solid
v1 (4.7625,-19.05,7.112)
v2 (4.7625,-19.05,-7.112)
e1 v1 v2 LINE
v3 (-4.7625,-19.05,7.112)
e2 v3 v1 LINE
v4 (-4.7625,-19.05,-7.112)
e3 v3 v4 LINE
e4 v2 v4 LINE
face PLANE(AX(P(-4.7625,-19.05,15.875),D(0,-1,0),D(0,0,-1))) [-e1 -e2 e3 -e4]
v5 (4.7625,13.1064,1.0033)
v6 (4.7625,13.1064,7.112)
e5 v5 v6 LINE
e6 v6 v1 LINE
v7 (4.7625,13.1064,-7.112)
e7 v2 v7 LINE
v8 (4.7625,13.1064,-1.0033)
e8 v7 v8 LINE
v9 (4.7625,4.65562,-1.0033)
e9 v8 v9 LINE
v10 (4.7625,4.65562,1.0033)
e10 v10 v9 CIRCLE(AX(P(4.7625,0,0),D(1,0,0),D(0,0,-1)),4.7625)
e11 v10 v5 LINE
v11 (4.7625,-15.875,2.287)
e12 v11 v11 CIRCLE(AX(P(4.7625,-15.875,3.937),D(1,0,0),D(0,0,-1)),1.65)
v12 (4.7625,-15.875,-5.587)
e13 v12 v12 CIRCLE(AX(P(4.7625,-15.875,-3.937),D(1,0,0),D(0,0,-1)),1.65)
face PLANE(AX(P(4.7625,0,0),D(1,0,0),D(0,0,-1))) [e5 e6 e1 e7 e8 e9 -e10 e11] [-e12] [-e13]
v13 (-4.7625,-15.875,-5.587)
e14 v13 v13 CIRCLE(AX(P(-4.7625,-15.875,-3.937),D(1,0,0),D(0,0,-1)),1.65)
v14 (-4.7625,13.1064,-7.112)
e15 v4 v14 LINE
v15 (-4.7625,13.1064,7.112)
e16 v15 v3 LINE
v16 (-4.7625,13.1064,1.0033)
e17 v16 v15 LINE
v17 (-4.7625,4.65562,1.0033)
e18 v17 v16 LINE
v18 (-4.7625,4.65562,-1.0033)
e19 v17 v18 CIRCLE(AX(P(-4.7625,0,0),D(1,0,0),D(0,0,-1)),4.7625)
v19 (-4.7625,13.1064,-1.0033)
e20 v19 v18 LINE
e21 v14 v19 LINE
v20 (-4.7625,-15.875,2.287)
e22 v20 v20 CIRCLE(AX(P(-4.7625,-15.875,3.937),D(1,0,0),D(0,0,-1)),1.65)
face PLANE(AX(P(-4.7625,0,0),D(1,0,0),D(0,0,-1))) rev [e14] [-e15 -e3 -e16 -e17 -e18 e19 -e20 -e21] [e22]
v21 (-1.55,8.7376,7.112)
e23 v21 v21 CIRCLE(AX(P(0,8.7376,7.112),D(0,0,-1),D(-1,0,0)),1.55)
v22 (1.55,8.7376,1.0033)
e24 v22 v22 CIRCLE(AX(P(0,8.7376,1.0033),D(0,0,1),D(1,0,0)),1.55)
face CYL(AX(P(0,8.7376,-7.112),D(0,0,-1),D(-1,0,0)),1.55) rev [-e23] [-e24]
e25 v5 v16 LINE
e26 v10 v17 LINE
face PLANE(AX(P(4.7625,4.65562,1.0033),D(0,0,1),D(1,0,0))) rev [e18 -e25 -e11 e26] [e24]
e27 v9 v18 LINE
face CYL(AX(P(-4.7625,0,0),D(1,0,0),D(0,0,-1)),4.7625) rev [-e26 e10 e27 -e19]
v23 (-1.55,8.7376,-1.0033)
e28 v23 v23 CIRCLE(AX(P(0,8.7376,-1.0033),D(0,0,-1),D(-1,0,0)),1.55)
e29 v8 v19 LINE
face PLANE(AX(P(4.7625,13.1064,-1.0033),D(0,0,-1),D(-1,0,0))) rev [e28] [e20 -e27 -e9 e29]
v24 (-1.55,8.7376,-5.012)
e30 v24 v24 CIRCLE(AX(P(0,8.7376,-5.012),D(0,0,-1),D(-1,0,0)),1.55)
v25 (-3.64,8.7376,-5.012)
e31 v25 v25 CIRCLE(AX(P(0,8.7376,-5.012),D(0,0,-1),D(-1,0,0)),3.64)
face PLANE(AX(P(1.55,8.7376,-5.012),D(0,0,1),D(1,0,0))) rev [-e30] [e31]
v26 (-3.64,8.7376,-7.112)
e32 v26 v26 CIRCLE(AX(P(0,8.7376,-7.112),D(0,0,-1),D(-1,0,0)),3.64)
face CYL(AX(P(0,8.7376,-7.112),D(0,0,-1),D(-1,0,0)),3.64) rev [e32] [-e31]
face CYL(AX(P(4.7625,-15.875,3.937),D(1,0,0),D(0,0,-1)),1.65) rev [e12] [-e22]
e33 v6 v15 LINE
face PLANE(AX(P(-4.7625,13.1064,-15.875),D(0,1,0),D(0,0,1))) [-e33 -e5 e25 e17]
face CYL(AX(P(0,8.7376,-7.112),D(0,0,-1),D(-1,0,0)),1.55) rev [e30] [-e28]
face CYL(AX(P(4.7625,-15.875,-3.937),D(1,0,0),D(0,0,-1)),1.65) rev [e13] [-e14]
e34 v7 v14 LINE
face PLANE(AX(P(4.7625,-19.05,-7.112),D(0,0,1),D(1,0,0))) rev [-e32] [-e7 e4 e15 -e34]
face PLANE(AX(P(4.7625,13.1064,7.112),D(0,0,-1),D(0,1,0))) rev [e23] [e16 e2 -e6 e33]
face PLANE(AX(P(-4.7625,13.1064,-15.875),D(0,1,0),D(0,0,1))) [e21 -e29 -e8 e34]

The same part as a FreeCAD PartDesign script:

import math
import FreeCAD as App
import Part
import Sketcher
Q = App.Units.Quantity

doc = App.newDocument("Part")
body = doc.addObject("PartDesign::Body", "Body")

# Sketch on YZ plane
sketch1 = doc.addObject("Sketcher::SketchObject", "Sketch")
body.addObject(sketch1)
sketch1.AttachmentSupport = (doc.YZ_Plane, [""])
sketch1.MapMode = "FlatFace"
sketch1.AttachmentOffset = App.Placement(App.Vector(0, 0, 0.1875 * 25.4), App.Rotation())
sketch1.addGeometry(Part.LineSegment(App.Vector(13, 16, 0), App.Vector(-19, 16, 0)), False)
sketch1.addGeometry(Part.LineSegment(App.Vector(-19, 16, 0), App.Vector(-19, -16, 0)), False)
sketch1.addGeometry(Part.LineSegment(App.Vector(-19, -16, 0), App.Vector(13, -16, 0)), False)
sketch1.addGeometry(Part.LineSegment(App.Vector(13, -16, 0), App.Vector(13, 16, 0)), False)
sketch1.addConstraint(Sketcher.Constraint("Coincident", 0, 2, 1, 1))
sketch1.addConstraint(Sketcher.Constraint("Coincident", 1, 2, 2, 1))
sketch1.addConstraint(Sketcher.Constraint("Coincident", 2, 2, 3, 1))
sketch1.addConstraint(Sketcher.Constraint("Coincident", 3, 2, 0, 1))
sketch1.addConstraint(Sketcher.Constraint("Horizontal", 0))
sketch1.addConstraint(Sketcher.Constraint("Vertical", 1))
sketch1.addConstraint(Sketcher.Constraint("Horizontal", 2))
sketch1.addConstraint(Sketcher.Constraint("Vertical", 3))
sketch1.addConstraint(Sketcher.Constraint("DistanceY", 1, 2, 1, 1, Q("1.25 in")))
sketch1.addConstraint(Sketcher.Constraint("DistanceX", 0, 2, 0, 1, Q("1.266 in")))
sketch1.addConstraint(Sketcher.Constraint("DistanceX", 0, 2, -1, 1, Q("0.75 in")))
sketch1.addConstraint(Sketcher.Constraint("DistanceY", -1, 1, 0, 2, Q("0.625 in")))
pad1 = doc.addObject("PartDesign::Pad", "Pad")
body.addObject(pad1)
pad1.Profile = sketch1
pad1.Length = Q("0.375 in")
pad1.Reversed = True

# Sketch on YZ plane
sketch2 = doc.addObject("Sketcher::SketchObject", "Sketch001")
body.addObject(sketch2)
sketch2.AttachmentSupport = (doc.YZ_Plane, [""])
sketch2.MapMode = "FlatFace"
sketch2.AttachmentOffset = App.Placement(App.Vector(0, 0, -0.1875 * 25.4), App.Rotation())
sketch2.addGeometry(Part.LineSegment(App.Vector(13, -16, 0), App.Vector(-19, -16, 0)), False)
sketch2.addGeometry(Part.LineSegment(App.Vector(-19, -16, 0), App.Vector(-19, -7, 0)), False)
sketch2.addGeometry(Part.LineSegment(App.Vector(-19, -7, 0), App.Vector(13, -7, 0)), False)
sketch2.addGeometry(Part.LineSegment(App.Vector(13, -7, 0), App.Vector(13, -16, 0)), False)
sketch2.addConstraint(Sketcher.Constraint("Coincident", 0, 2, 1, 1))
sketch2.addConstraint(Sketcher.Constraint("Coincident", 1, 2, 2, 1))
sketch2.addConstraint(Sketcher.Constraint("Coincident", 2, 2, 3, 1))
sketch2.addConstraint(Sketcher.Constraint("Coincident", 3, 2, 0, 1))
sketch2.addConstraint(Sketcher.Constraint("Horizontal", 0))
sketch2.addConstraint(Sketcher.Constraint("Vertical", 1))
sketch2.addConstraint(Sketcher.Constraint("Horizontal", 2))
sketch2.addConstraint(Sketcher.Constraint("Vertical", 3))
sketch2.addConstraint(Sketcher.Constraint("DistanceX", 0, 2, 0, 1, Q("1.266 in")))
sketch2.addConstraint(Sketcher.Constraint("DistanceY", 1, 1, 1, 2, Q("0.345 in")))
sketch2.addConstraint(Sketcher.Constraint("DistanceX", 0, 2, -1, 1, Q("0.75 in")))
sketch2.addConstraint(Sketcher.Constraint("DistanceY", 1, 2, -1, 1, Q("0.28 in")))
pocket1 = doc.addObject("PartDesign::Pocket", "Pocket")
body.addObject(pocket1)
pocket1.Profile = sketch2
pocket1.Type = "ThroughAll"
pocket1.Reversed = True

# Sketch on YZ plane
sketch3 = doc.addObject("Sketcher::SketchObject", "Sketch002")
body.addObject(sketch3)
sketch3.AttachmentSupport = (doc.YZ_Plane, [""])
sketch3.MapMode = "FlatFace"
sketch3.AttachmentOffset = App.Placement(App.Vector(0, 0, -0.1875 * 25.4), App.Rotation())
sketch3.addGeometry(Part.LineSegment(App.Vector(13.1, 1, 0), App.Vector(13.1, -1, 0)), False)
sketch3.addGeometry(Part.LineSegment(App.Vector(13.1, -1, 0), App.Vector(4.7, -1, 0)), False)
sketch3.addGeometry(Part.ArcOfCircle(Part.Circle(App.Vector(0, 0, 0), App.Vector(0, 0, 1), 4.8), math.radians(-12), math.radians(12)), False)
sketch3.addGeometry(Part.LineSegment(App.Vector(4.7, 1, 0), App.Vector(13.1, 1, 0)), False)
sketch3.addConstraint(Sketcher.Constraint("Coincident", 0, 2, 1, 1))
sketch3.addConstraint(Sketcher.Constraint("Coincident", 1, 2, 2, 1))
sketch3.addConstraint(Sketcher.Constraint("Coincident", 2, 2, 3, 1))
sketch3.addConstraint(Sketcher.Constraint("Coincident", 3, 2, 0, 1))
sketch3.addConstraint(Sketcher.Constraint("Vertical", 0))
sketch3.addConstraint(Sketcher.Constraint("Horizontal", 1))
sketch3.addConstraint(Sketcher.Constraint("Horizontal", 3))
sketch3.addConstraint(Sketcher.Constraint("Coincident", 2, 3, -1, 1))
sketch3.addConstraint(Sketcher.Constraint("Vertical", 1, 2, 2, 2))
sketch3.addConstraint(Sketcher.Constraint("Radius", 2, Q("0.1875 in")))
sketch3.addConstraint(Sketcher.Constraint("DistanceY", 0, 2, 0, 1, Q("0.079 in")))
sketch3.addConstraint(Sketcher.Constraint("DistanceX", -1, 1, 0, 2, Q("0.516 in")))
pocket2 = doc.addObject("PartDesign::Pocket", "Pocket001")
body.addObject(pocket2)
pocket2.Profile = sketch3
pocket2.Type = "ThroughAll"
pocket2.Reversed = True

# Sketch on YZ plane
sketch4 = doc.addObject("Sketcher::SketchObject", "Sketch003")
body.addObject(sketch4)
sketch4.AttachmentSupport = (doc.YZ_Plane, [""])
sketch4.MapMode = "FlatFace"
sketch4.AttachmentOffset = App.Placement(App.Vector(0, 0, -0.1875 * 25.4), App.Rotation())
sketch4.addGeometry(Part.LineSegment(App.Vector(13, 7, 0), App.Vector(-19, 7, 0)), False)
sketch4.addGeometry(Part.LineSegment(App.Vector(-19, 7, 0), App.Vector(-19, 16, 0)), False)
sketch4.addGeometry(Part.LineSegment(App.Vector(-19, 16, 0), App.Vector(13, 16, 0)), False)
sketch4.addGeometry(Part.LineSegment(App.Vector(13, 16, 0), App.Vector(13, 7, 0)), False)
sketch4.addConstraint(Sketcher.Constraint("Coincident", 0, 2, 1, 1))
sketch4.addConstraint(Sketcher.Constraint("Coincident", 1, 2, 2, 1))
sketch4.addConstraint(Sketcher.Constraint("Coincident", 2, 2, 3, 1))
sketch4.addConstraint(Sketcher.Constraint("Coincident", 3, 2, 0, 1))
sketch4.addConstraint(Sketcher.Constraint("Horizontal", 0))
sketch4.addConstraint(Sketcher.Constraint("Vertical", 1))
sketch4.addConstraint(Sketcher.Constraint("Horizontal", 2))
sketch4.addConstraint(Sketcher.Constraint("Vertical", 3))
sketch4.addConstraint(Sketcher.Constraint("DistanceY", 1, 1, 1, 2, Q("0.345 in")))
sketch4.addConstraint(Sketcher.Constraint("DistanceY", -1, 1, 0, 2, Q("0.28 in")))
sketch4.addConstraint(Sketcher.Constraint("DistanceX", -1, 1, 2, 2, Q("0.516 in")))
sketch4.addConstraint(Sketcher.Constraint("DistanceX", 0, 2, 0, 1, 32.16))
pocket3 = doc.addObject("PartDesign::Pocket", "Pocket002")
body.addObject(pocket3)
pocket3.Profile = sketch4
pocket3.Type = "ThroughAll"
pocket3.Reversed = True

# Sketch on XY plane
sketch5 = doc.addObject("Sketcher::SketchObject", "Sketch004")
body.addObject(sketch5)
sketch5.AttachmentSupport = (doc.XY_Plane, [""])
sketch5.MapMode = "FlatFace"
sketch5.addGeometry(Part.LineSegment(App.Vector(-4.8, 4.8, 0), App.Vector(-4.8, 0, 0)), False)
sketch5.addGeometry(Part.LineSegment(App.Vector(-4.8, 0, 0), App.Vector(4.8, 0, 0)), False)
sketch5.addGeometry(Part.LineSegment(App.Vector(4.8, 0, 0), App.Vector(4.8, 4.8, 0)), False)
sketch5.addGeometry(Part.LineSegment(App.Vector(4.8, 4.8, 0), App.Vector(-4.8, 4.8, 0)), False)
sketch5.addConstraint(Sketcher.Constraint("Coincident", 0, 2, 1, 1))
sketch5.addConstraint(Sketcher.Constraint("Coincident", 1, 2, 2, 1))
sketch5.addConstraint(Sketcher.Constraint("Coincident", 2, 2, 3, 1))
sketch5.addConstraint(Sketcher.Constraint("Coincident", 3, 2, 0, 1))
sketch5.addConstraint(Sketcher.Constraint("Vertical", 0))
sketch5.addConstraint(Sketcher.Constraint("Horizontal", 1))
sketch5.addConstraint(Sketcher.Constraint("Vertical", 2))
sketch5.addConstraint(Sketcher.Constraint("Horizontal", 3))
sketch5.addConstraint(Sketcher.Constraint("Symmetric", 0, 2, 1, 2, -1, 1))
sketch5.addConstraint(Sketcher.Constraint("DistanceX", 1, 1, 1, 2, Q("0.375 in")))
sketch5.addConstraint(Sketcher.Constraint("DistanceY", 0, 2, 0, 1, Q("0.1875 in")))
groove = doc.addObject("PartDesign::Groove", "Groove")
body.addObject(groove)
groove.Profile = sketch5
groove.ReferenceAxis = (sketch5, ["H_Axis"])
groove.Angle = 360

# Sketch on YZ plane
sketch6 = doc.addObject("Sketcher::SketchObject", "Sketch005")
body.addObject(sketch6)
sketch6.AttachmentSupport = (doc.YZ_Plane, [""])
sketch6.MapMode = "FlatFace"
sketch6.addGeometry(Part.LineSegment(App.Vector(8.7, 7.1, 0), App.Vector(8.7, 1, 0)), False)
sketch6.addGeometry(Part.LineSegment(App.Vector(8.7, 1, 0), App.Vector(10.1, 1, 0)), False)
sketch6.addGeometry(Part.LineSegment(App.Vector(10.1, 1, 0), App.Vector(10.1, 7.1, 0)), False)
sketch6.addGeometry(Part.LineSegment(App.Vector(10.1, 7.1, 0), App.Vector(8.7, 7.1, 0)), False)
sketch6.addGeometry(Part.LineSegment(App.Vector(8.7, 7.1, 0), App.Vector(8.7, 1, 0)), True)  # axis
sketch6.addConstraint(Sketcher.Constraint("Coincident", 0, 2, 1, 1))
sketch6.addConstraint(Sketcher.Constraint("Coincident", 1, 2, 2, 1))
sketch6.addConstraint(Sketcher.Constraint("Coincident", 2, 2, 3, 1))
sketch6.addConstraint(Sketcher.Constraint("Coincident", 3, 2, 0, 1))
sketch6.addConstraint(Sketcher.Constraint("Vertical", 0))
sketch6.addConstraint(Sketcher.Constraint("Horizontal", 1))
sketch6.addConstraint(Sketcher.Constraint("Vertical", 2))
sketch6.addConstraint(Sketcher.Constraint("Horizontal", 3))
sketch6.addConstraint(Sketcher.Constraint("Vertical", 4))
sketch6.addConstraint(Sketcher.Constraint("Coincident", 4, 1, 3, 2))
sketch6.addConstraint(Sketcher.Constraint("Horizontal", 1, 2, 4, 2))
sketch6.addConstraint(Sketcher.Constraint("DistanceX", 1, 1, 1, 2, Q("0.052 in")))
sketch6.addConstraint(Sketcher.Constraint("DistanceY", -1, 1, 2, 2, Q("0.28 in")))
sketch6.addConstraint(Sketcher.Constraint("DistanceY", 0, 2, 0, 1, Q("0.2405 in")))
sketch6.addConstraint(Sketcher.Constraint("DistanceX", -1, 1, 0, 2, Q("0.344 in")))
groove2 = doc.addObject("PartDesign::Groove", "Groove001")
body.addObject(groove2)
groove2.Profile = sketch6
groove2.ReferenceAxis = (sketch6, ["Axis0"])
groove2.Angle = 360

# Sketch on XY plane
sketch7 = doc.addObject("Sketcher::SketchObject", "Sketch006")
body.addObject(sketch7)
sketch7.AttachmentSupport = (doc.XY_Plane, [""])
sketch7.MapMode = "FlatFace"
sketch7.AttachmentOffset = App.Placement(App.Vector(0, 0, -0.28 * 25.4), App.Rotation())
sketch7.addGeometry(Part.Circle(App.Vector(0, 8.7, 0), App.Vector(0, 0, 1), 1.6), False)
sketch7.addConstraint(Sketcher.Constraint("PointOnObject", 0, 3, -2))
sketch7.addConstraint(Sketcher.Constraint("Diameter", 0, 3.1))
sketch7.addConstraint(Sketcher.Constraint("DistanceY", -1, 1, 0, 3, Q("0.344 in")))
doc.recompute()
hole = doc.addObject("PartDesign::Hole", "Hole")
body.addObject(hole)
hole.Profile = sketch7
hole.ThreadType = "None"
hole.Diameter = 3.1
hole.DepthType = "ThroughAll"
hole.HoleCutType = "Counterbore"
hole.HoleCutDiameter = 7.28
hole.HoleCutDepth = 2.1
hole.Reversed = True

# Sketch on YZ plane
sketch8 = doc.addObject("Sketcher::SketchObject", "Sketch007")
body.addObject(sketch8)
sketch8.AttachmentSupport = (doc.YZ_Plane, [""])
sketch8.MapMode = "FlatFace"
sketch8.AttachmentOffset = App.Placement(App.Vector(0, 0, 0.1875 * 25.4), App.Rotation())
sketch8.addGeometry(Part.Circle(App.Vector(-15.9, -3.9, 0), App.Vector(0, 0, 1), 1.6), False)
sketch8.addGeometry(Part.Circle(App.Vector(-15.9, 3.9, 0), App.Vector(0, 0, 1), 1.6), False)
sketch8.addConstraint(Sketcher.Constraint("Equal", 0, 1))
sketch8.addConstraint(Sketcher.Constraint("Symmetric", 0, 3, 1, 3, -1))
sketch8.addConstraint(Sketcher.Constraint("Diameter", 0, 3.3))
sketch8.addConstraint(Sketcher.Constraint("DistanceY", 0, 3, 1, 3, Q("0.31 in")))
sketch8.addConstraint(Sketcher.Constraint("DistanceX", 0, 3, -1, 1, Q("0.625 in")))
doc.recompute()
hole2 = doc.addObject("PartDesign::Hole", "Hole001")
body.addObject(hole2)
hole2.Profile = sketch8
hole2.ThreadType = "None"
hole2.Diameter = 3.3
hole2.DepthType = "ThroughAll"

doc.recompute()
